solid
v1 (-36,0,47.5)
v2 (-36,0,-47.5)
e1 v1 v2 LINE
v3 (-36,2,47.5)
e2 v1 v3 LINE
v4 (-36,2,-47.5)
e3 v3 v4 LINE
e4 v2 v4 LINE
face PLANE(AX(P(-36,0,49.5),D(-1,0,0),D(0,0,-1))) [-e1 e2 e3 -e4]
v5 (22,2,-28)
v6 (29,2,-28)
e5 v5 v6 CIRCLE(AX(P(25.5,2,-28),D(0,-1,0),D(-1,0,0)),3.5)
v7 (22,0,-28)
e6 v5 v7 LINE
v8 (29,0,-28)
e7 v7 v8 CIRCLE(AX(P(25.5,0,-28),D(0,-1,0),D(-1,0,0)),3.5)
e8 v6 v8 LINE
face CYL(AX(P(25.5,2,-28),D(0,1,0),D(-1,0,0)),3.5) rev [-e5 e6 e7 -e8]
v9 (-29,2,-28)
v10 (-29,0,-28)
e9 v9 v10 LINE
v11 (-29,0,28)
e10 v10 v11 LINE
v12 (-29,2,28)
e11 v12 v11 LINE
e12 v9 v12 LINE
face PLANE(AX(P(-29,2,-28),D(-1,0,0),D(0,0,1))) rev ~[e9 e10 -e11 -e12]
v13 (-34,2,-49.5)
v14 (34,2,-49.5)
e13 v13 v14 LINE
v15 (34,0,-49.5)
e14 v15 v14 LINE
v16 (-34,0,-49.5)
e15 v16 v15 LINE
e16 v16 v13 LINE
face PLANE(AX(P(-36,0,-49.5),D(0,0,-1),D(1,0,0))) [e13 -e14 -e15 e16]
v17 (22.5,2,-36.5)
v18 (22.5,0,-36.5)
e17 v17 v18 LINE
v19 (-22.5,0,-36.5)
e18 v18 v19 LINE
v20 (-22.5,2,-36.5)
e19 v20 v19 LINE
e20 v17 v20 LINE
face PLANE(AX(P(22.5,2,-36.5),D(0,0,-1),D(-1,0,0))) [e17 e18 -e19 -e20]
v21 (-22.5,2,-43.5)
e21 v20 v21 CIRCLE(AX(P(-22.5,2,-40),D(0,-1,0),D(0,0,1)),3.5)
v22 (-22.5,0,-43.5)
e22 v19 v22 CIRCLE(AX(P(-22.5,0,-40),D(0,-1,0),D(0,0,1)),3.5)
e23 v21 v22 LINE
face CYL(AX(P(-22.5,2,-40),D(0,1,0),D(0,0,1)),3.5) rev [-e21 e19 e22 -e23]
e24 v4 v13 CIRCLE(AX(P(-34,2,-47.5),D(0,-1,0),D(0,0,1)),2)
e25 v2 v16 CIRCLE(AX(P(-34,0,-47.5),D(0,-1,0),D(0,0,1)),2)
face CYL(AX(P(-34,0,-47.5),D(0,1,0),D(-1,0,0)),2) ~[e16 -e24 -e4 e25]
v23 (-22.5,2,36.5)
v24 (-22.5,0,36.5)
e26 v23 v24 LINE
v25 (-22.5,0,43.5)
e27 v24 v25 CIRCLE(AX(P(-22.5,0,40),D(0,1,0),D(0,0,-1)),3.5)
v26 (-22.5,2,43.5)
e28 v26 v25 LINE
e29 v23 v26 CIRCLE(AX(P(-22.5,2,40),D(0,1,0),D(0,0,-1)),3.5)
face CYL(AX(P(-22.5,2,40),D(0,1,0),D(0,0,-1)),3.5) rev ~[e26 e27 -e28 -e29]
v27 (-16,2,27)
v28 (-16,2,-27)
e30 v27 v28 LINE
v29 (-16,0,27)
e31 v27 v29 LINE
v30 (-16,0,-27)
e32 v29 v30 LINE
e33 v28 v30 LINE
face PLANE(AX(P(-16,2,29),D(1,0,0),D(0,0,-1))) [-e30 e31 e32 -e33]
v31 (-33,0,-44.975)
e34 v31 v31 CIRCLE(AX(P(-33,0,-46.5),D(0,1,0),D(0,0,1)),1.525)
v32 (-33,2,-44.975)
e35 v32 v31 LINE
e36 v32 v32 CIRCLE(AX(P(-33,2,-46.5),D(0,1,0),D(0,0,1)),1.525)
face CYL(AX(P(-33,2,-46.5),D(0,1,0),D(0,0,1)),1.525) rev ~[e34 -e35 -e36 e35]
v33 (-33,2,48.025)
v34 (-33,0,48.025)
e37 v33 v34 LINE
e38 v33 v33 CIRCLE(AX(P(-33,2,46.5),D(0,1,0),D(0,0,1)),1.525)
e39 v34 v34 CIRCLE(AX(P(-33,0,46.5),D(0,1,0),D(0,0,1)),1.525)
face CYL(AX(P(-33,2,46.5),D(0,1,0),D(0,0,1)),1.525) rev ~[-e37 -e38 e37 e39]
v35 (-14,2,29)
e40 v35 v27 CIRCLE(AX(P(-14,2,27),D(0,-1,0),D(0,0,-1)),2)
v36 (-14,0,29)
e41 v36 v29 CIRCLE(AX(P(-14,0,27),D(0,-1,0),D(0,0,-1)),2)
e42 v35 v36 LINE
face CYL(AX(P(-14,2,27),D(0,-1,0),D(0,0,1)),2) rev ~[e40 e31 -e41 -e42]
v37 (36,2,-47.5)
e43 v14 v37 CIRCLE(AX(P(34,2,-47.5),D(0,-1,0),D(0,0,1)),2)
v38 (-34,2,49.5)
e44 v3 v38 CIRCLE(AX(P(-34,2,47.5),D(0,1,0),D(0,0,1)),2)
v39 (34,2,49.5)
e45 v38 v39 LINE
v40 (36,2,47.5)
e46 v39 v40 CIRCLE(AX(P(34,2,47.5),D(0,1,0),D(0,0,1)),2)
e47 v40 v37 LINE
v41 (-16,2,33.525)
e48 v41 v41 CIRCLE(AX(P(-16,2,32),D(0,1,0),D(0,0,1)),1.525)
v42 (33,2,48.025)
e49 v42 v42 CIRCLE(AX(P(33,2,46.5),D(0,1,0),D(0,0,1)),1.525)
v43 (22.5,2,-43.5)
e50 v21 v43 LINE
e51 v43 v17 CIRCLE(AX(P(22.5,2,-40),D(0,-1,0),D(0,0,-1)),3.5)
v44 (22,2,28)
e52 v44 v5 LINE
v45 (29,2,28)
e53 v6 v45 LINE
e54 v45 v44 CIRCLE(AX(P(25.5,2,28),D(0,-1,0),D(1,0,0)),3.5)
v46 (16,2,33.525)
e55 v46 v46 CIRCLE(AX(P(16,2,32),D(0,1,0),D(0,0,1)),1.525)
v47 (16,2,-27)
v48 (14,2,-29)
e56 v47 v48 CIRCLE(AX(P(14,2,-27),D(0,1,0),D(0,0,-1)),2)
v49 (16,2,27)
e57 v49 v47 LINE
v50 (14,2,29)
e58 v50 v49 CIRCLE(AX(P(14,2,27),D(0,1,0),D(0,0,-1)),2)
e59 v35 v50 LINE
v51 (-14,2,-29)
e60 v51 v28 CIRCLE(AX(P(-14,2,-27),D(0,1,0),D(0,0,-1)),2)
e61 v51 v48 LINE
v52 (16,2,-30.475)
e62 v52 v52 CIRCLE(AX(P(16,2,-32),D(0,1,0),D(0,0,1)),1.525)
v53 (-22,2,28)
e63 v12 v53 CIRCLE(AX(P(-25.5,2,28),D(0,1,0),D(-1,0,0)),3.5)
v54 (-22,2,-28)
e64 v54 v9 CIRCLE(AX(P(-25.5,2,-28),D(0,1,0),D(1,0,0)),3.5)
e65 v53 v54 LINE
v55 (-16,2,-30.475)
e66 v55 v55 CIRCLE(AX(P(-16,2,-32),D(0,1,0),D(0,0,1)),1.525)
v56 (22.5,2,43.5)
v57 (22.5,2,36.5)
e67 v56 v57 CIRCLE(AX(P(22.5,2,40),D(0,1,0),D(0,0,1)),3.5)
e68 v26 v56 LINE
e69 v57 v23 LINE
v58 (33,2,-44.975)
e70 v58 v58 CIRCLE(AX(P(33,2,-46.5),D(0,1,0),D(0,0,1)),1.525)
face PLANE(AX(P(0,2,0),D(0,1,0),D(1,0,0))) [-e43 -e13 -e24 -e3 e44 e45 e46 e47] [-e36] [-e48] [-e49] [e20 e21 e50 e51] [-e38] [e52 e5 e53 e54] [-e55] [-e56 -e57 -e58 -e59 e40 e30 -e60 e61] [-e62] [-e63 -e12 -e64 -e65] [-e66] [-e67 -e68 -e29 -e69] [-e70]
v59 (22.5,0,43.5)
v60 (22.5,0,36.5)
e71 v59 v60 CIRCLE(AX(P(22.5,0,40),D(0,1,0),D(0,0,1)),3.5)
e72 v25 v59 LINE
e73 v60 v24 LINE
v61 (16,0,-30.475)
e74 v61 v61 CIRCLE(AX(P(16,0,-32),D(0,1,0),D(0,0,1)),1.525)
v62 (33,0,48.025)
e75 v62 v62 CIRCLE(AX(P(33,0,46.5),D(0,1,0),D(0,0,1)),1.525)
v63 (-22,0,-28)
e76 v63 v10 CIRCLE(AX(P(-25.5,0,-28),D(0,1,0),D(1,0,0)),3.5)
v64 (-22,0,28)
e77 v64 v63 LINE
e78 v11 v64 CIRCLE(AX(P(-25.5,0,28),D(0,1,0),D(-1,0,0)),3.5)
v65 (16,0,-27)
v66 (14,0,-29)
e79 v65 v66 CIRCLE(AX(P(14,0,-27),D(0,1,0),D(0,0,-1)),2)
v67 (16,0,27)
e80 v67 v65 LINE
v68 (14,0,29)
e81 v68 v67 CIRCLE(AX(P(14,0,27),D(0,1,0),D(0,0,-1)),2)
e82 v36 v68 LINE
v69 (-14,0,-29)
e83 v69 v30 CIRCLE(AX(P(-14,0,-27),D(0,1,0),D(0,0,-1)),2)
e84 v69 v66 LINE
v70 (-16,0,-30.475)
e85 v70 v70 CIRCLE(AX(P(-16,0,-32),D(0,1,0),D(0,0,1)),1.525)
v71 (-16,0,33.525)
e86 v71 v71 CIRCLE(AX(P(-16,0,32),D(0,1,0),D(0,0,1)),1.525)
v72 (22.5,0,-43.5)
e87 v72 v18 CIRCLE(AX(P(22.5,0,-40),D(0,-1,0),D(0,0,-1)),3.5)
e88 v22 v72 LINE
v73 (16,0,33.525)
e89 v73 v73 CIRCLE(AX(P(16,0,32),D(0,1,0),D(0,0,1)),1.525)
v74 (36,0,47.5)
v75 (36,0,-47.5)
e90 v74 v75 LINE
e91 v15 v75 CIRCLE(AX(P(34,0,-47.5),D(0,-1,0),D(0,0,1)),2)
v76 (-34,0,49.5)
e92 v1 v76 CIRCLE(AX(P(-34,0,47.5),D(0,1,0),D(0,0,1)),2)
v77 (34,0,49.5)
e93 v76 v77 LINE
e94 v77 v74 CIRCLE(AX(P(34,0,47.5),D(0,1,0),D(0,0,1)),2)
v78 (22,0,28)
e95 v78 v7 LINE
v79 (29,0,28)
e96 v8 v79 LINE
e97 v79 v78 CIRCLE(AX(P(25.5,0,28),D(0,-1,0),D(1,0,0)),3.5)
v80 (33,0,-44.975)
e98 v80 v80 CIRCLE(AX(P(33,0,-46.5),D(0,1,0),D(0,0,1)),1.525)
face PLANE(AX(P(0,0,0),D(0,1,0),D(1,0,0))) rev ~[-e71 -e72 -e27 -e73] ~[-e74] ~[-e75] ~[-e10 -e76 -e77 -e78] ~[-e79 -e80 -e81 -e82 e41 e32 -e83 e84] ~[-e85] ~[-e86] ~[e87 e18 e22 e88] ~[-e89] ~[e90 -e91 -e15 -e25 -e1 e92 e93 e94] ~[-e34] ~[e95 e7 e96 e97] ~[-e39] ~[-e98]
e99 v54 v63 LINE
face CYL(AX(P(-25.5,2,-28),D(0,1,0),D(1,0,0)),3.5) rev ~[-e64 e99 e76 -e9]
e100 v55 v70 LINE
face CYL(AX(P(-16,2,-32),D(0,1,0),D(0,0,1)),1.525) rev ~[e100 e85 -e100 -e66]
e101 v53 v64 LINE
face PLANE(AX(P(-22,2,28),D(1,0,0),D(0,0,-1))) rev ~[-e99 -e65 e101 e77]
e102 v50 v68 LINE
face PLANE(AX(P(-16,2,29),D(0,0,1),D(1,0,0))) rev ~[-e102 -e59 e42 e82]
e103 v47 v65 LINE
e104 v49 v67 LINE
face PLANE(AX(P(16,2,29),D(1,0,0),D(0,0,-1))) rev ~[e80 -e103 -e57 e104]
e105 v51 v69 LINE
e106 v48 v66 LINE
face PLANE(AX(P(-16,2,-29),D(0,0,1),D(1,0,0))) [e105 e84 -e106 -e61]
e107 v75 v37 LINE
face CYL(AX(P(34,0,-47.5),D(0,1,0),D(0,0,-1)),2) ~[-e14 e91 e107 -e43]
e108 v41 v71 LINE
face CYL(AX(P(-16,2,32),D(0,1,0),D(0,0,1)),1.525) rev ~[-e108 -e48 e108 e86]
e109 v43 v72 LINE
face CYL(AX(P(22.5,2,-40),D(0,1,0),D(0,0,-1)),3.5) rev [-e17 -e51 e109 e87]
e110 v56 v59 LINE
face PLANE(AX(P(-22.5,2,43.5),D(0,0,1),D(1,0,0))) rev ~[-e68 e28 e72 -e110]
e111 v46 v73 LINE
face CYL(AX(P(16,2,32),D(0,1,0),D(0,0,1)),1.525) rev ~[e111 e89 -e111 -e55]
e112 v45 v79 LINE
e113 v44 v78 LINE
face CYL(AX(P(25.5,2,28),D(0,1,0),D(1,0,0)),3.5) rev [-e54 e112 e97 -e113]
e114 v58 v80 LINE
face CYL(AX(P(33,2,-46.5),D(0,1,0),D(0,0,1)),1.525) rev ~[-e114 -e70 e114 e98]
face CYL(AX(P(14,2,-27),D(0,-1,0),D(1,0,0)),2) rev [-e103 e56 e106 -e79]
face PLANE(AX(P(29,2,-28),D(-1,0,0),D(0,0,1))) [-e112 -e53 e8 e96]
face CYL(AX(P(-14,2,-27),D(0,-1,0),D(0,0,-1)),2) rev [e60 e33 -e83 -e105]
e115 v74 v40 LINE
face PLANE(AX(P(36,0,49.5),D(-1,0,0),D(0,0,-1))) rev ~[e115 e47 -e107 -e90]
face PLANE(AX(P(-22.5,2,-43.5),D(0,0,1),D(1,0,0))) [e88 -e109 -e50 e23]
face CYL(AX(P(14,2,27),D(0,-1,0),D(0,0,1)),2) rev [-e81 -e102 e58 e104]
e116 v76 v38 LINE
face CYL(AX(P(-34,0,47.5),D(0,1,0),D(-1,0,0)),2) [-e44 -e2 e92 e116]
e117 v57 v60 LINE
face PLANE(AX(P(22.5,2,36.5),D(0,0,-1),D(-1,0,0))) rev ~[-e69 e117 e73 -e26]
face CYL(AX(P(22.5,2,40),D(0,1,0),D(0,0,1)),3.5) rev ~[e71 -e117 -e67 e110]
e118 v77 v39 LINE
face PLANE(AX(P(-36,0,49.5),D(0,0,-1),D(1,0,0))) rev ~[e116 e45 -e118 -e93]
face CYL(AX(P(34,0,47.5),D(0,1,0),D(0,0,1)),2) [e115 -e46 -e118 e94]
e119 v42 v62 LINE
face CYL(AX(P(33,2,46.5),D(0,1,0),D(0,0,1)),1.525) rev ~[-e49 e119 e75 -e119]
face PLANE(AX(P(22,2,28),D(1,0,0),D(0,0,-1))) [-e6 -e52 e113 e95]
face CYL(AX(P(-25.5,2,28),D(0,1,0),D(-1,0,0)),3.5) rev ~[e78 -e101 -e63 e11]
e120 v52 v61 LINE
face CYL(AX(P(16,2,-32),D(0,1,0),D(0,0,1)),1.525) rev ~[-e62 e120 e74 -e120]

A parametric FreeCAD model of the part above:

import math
import FreeCAD as App
import Part
import Sketcher


def edges_at(feature, points):
    """Names of the edges that pass closest to the given points."""
    edges = feature.Shape.Edges
    near = lambda p: min(range(len(edges)), key=lambda i: edges[i].distToShape(Part.Vertex(*p))[0])
    return sorted({f"Edge{near(p) + 1}" for p in points})


def add_polygon(sketch, points):
    """Adds a closed chain of lines whose ends are joined by coincident constraints."""
    first, n = sketch.GeometryCount, len(points)
    for a, b in zip(points, points[1:] + points[:1]):
        sketch.addGeometry(Part.LineSegment(App.Vector(*a, 0), App.Vector(*b, 0)), False)
    for i in range(n):
        sketch.addConstraint(Sketcher.Constraint("Coincident", first + i, 2, first + (i + 1) % n, 1))

doc = App.newDocument("Part")
params = doc.addObject("Spreadsheet::Sheet", "Params")
for row, (alias, value) in enumerate([
    ("sketch1_width", "72 mm"),
    ("sketch1_height", "99 mm"),
    ("pad1_length", "2 mm"),
    ("sketch2_diameter", "3.05 mm"),
    ("pocket1_length", "2 mm"),
    ("sketch3_diameter", "3.05 mm"),
    ("pocket2_length", "2 mm"),
    ("sketch4_width", "32 mm"),
    ("sketch4_height", "58 mm"),
    ("pocket3_length", "2 mm"),
    ("fillet_radius", "2 mm"),
    ("sketch5_radius", "3.5 mm"),
    ("sketch5_width", "45 mm"),
    ("sketch5_height", "56 mm"),
    ("pocket4_length", "2 mm"),
    ("fillet2_radius", "2 mm"),
], start=1):
    params.set(f"A{row}", alias)
    params.set(f"B{row}", "=" + value)
    params.setAlias(f"B{row}", alias)

body = doc.addObject("PartDesign::Body", "Body")

sketch1 = body.newObject("Sketcher::SketchObject", "Sketch")
sketch1.AttachmentSupport = (doc.getObject("XZ_Plane"), [""])
sketch1.MapMode = "FlatFace"
add_polygon(sketch1, [(-36, -50), (-36, 50), (36, 50), (36, -50)])
sketch1.addConstraint([
    Sketcher.Constraint("Vertical", 0),
    Sketcher.Constraint("Horizontal", 1),
    Sketcher.Constraint("Vertical", 2),
    Sketcher.Constraint("Horizontal", 3),
    Sketcher.Constraint("Symmetric", 0, 2, 2, 2, -1, 1),
    Sketcher.Constraint("DistanceX", 1, 1, 1, 2, 72.0),
    Sketcher.Constraint("DistanceY", 0, 1, 0, 2, 99.0),
])
sketch1.setExpression("Constraints[9]", "Params.sketch1_width")
sketch1.setExpression("Constraints[10]", "Params.sketch1_height")
pad1 = body.newObject("PartDesign::Pad", "Pad")
pad1.Profile = sketch1
pad1.setExpression("Length", "Params.pad1_length")
pad1.Reversed = True

sketch2 = body.newObject("Sketcher::SketchObject", "Sketch001")
sketch2.AttachmentSupport = (doc.getObject("XZ_Plane"), [""])
sketch2.MapMode = "FlatFace"
sketch2.AttachmentOffset = App.Placement(App.Vector(0, 0, -2), App.Rotation())
sketch2.addGeometry([
    Part.Circle(App.Vector(33, -46.5, 0), App.Vector(0, 0, 1), 1.5),
    Part.Circle(App.Vector(-33, -46.5, 0), App.Vector(0, 0, 1), 1.5),
    Part.Circle(App.Vector(-33, 46.5, 0), App.Vector(0, 0, 1), 1.5),
    Part.Circle(App.Vector(33, 46.5, 0), App.Vector(0, 0, 1), 1.5),
], False)
sketch2.addConstraint([
    Sketcher.Constraint("Equal", 0, 1),
    Sketcher.Constraint("Equal", 1, 2),
    Sketcher.Constraint("Equal", 2, 3),
    Sketcher.Constraint("Symmetric", 0, 3, 2, 3, -1, 1),
    Sketcher.Constraint("Symmetric", 1, 3, 3, 3, -1, 1),
    Sketcher.Constraint("Symmetric", 0, 3, 1, 3, -2),
    Sketcher.Constraint("Diameter", 0, 3.05),
    Sketcher.Constraint("DistanceX", -1, 1, 0, 3, 33.0),
    Sketcher.Constraint("DistanceY", 1, 3, 2, 3, 93.0),
])
sketch2.setExpression("Constraints[6]", "Params.sketch2_diameter")
pocket1 = body.newObject("PartDesign::Pocket", "Pocket")
pocket1.Profile = sketch2
pocket1.setExpression("Length", "Params.pocket1_length")
pocket1.Reversed = True

sketch3 = body.newObject("Sketcher::SketchObject", "Sketch002")
sketch3.AttachmentSupport = (doc.getObject("XZ_Plane"), [""])
sketch3.MapMode = "FlatFace"
sketch3.AttachmentOffset = App.Placement(App.Vector(0, 0, -2), App.Rotation())
sketch3.addGeometry([
    Part.Circle(App.Vector(16, 32, 0), App.Vector(0, 0, 1), 1.5),
    Part.Circle(App.Vector(-16, 32, 0), App.Vector(0, 0, 1), 1.5),
    Part.Circle(App.Vector(-16, -32, 0), App.Vector(0, 0, 1), 1.5),
    Part.Circle(App.Vector(16, -32, 0), App.Vector(0, 0, 1), 1.5),
], False)
sketch3.addConstraint([
    Sketcher.Constraint("Equal", 0, 1),
    Sketcher.Constraint("Equal", 1, 2),
    Sketcher.Constraint("Equal", 2, 3),
    Sketcher.Constraint("Symmetric", 0, 3, 2, 3, -1, 1),
    Sketcher.Constraint("Symmetric", 1, 3, 3, 3, -1, 1),
    Sketcher.Constraint("Symmetric", 0, 3, 1, 3, -2),
    Sketcher.Constraint("Diameter", 0, 3.05),
    Sketcher.Constraint("DistanceX", -1, 1, 0, 3, 16.0),
    Sketcher.Constraint("DistanceY", -1, 1, 0, 3, 32.0),
])
sketch3.setExpression("Constraints[6]", "Params.sketch3_diameter")
pocket2 = body.newObject("PartDesign::Pocket", "Pocket001")
pocket2.Profile = sketch3
pocket2.setExpression("Length", "Params.pocket2_length")
pocket2.Reversed = True

sketch4 = body.newObject("Sketcher::SketchObject", "Sketch003")
sketch4.AttachmentSupport = (doc.getObject("XZ_Plane"), [""])
sketch4.MapMode = "FlatFace"
sketch4.AttachmentOffset = App.Placement(App.Vector(0, 0, -2), App.Rotation())
add_polygon(sketch4, [(-16, -29), (-16, 29), (16, 29), (16, -29)])
sketch4.addConstraint([
    Sketcher.Constraint("Vertical", 0),
    Sketcher.Constraint("Horizontal", 1),
    Sketcher.Constraint("Vertical", 2),
    Sketcher.Constraint("Horizontal", 3),
    Sketcher.Constraint("Symmetric", 0, 2, 2, 2, -1, 1),
    Sketcher.Constraint("DistanceX", 1, 1, 1, 2, 32.0),
    Sketcher.Constraint("DistanceY", 0, 1, 0, 2, 58.0),
])
sketch4.setExpression("Constraints[9]", "Params.sketch4_width")
sketch4.setExpression("Constraints[10]", "Params.sketch4_height")
pocket3 = body.newObject("PartDesign::Pocket", "Pocket002")
pocket3.Profile = sketch4
pocket3.setExpression("Length", "Params.pocket3_length")
pocket3.Reversed = True
doc.recompute()

fillet = body.newObject("PartDesign::Fillet", "Fillet")
fillet.Base = (pocket3, edges_at(pocket3, [
    (16, 1, -29),
    (16, 1, 29),
    (-16, 1, 29),
    (-16, 1, -29),
]))
fillet.setExpression("Radius", "Params.fillet_radius")

sketch5 = body.newObject("Sketcher::SketchObject", "Sketch004")
sketch5.AttachmentSupport = (doc.getObject("XZ_Plane"), [""])
sketch5.MapMode = "FlatFace"
sketch5.AttachmentOffset = App.Placement(App.Vector(0, 0, -2), App.Rotation())
sketch5.addGeometry([
    Part.LineSegment(App.Vector(22, -28, 0), App.Vector(22, 28, 0)),
    Part.ArcOfCircle(Part.Circle(App.Vector(25.5, 28, 0), App.Vector(0, 0, 1), 3.5), math.radians(0), math.radians(180)),
    Part.LineSegment(App.Vector(29, 28, 0), App.Vector(29, -28, 0)),
    Part.ArcOfCircle(Part.Circle(App.Vector(25.5, -28, 0), App.Vector(0, 0, 1), 3.5), math.radians(180), math.radians(360)),
    Part.LineSegment(App.Vector(-22, 28, 0), App.Vector(-22, -28, 0)),
    Part.ArcOfCircle(Part.Circle(App.Vector(-25.5, -28, 0), App.Vector(0, 0, 1), 3.5), math.radians(180), math.radians(360)),
    Part.LineSegment(App.Vector(-29, -28, 0), App.Vector(-29, 28, 0)),
    Part.ArcOfCircle(Part.Circle(App.Vector(-25.5, 28, 0), App.Vector(0, 0, 1), 3.5), math.radians(0), math.radians(180)),
    Part.LineSegment(App.Vector(22.5, -43.5, 0), App.Vector(-22.5, -43.5, 0)),
    Part.ArcOfCircle(Part.Circle(App.Vector(-22.5, -40, 0), App.Vector(0, 0, 1), 3.5), math.radians(90), math.radians(270)),
    Part.LineSegment(App.Vector(-22.5, -36.5, 0), App.Vector(22.5, -36.5, 0)),
    Part.ArcOfCircle(Part.Circle(App.Vector(22.5, -40, 0), App.Vector(0, 0, 1), 3.5), math.radians(-90), math.radians(90)),
    Part.LineSegment(App.Vector(-22.5, 43.5, 0), App.Vector(22.5, 43.5, 0)),
    Part.ArcOfCircle(Part.Circle(App.Vector(22.5, 40, 0), App.Vector(0, 0, 1), 3.5), math.radians(-90), math.radians(90)),
    Part.LineSegment(App.Vector(22.5, 36.5, 0), App.Vector(-22.5, 36.5, 0)),
    Part.ArcOfCircle(Part.Circle(App.Vector(-22.5, 40, 0), App.Vector(0, 0, 1), 3.5), math.radians(90), math.radians(270)),
], False)
sketch5.addConstraint([
    Sketcher.Constraint("Tangent", 0, 2, 1, 2),
    Sketcher.Constraint("Tangent", 1, 1, 2, 1),
    Sketcher.Constraint("Tangent", 2, 2, 3, 2),
    Sketcher.Constraint("Tangent", 3, 1, 0, 1),
    Sketcher.Constraint("Tangent", 4, 2, 5, 2),
    Sketcher.Constraint("Tangent", 5, 1, 6, 1),
    Sketcher.Constraint("Tangent", 6, 2, 7, 2),
    Sketcher.Constraint("Tangent", 7, 1, 4, 1),
    Sketcher.Constraint("Tangent", 8, 2, 9, 2),
    Sketcher.Constraint("Tangent", 9, 1, 10, 1),
    Sketcher.Constraint("Tangent", 10, 2, 11, 2),
    Sketcher.Constraint("Tangent", 11, 1, 8, 1),
    Sketcher.Constraint("Tangent", 12, 2, 13, 2),
    Sketcher.Constraint("Tangent", 13, 1, 14, 1),
    Sketcher.Constraint("Tangent", 14, 2, 15, 2),
    Sketcher.Constraint("Tangent", 15, 1, 12, 1),
    Sketcher.Constraint("Vertical", 0),
    Sketcher.Constraint("Vertical", 2),
    Sketcher.Constraint("Vertical", 4),
    Sketcher.Constraint("Vertical", 6),
    Sketcher.Constraint("Horizontal", 8),
    Sketcher.Constraint("Horizontal", 10),
    Sketcher.Constraint("Horizontal", 12),
    Sketcher.Constraint("Horizontal", 14),
    Sketcher.Constraint("Equal", 3, 5),
    Sketcher.Constraint("Equal", 7, 9),
    Sketcher.Constraint("Equal", 11, 13),
    Sketcher.Constraint("Symmetric", 1, 3, 5, 3, -1, 1),
    Sketcher.Constraint("Symmetric", 9, 3, 13, 3, -1, 1),
    Sketcher.Constraint("Horizontal", 3, 3, 5, 3),
    Sketcher.Constraint("Horizontal", 1, 3, 7, 3),
    Sketcher.Constraint("Vertical", 11, 3, 13, 3),
    Sketcher.Constraint("Vertical", 9, 3, 15, 3),
    Sketcher.Constraint("Radius", 1, 3.5),
    Sketcher.Constraint("DistanceX", 8, 2, 8, 1, 45.0),
    Sketcher.Constraint("DistanceY", 0, 1, 0, 2, 56.0),
    Sketcher.Constraint("DistanceY", 9, 3, -1, 1, 40.0),
    Sketcher.Constraint("DistanceX", -1, 1, 0, 2, 22.0),
])
sketch5.setExpression("Constraints[33]", "Params.sketch5_radius")
sketch5.setExpression("Constraints[34]", "Params.sketch5_width")
sketch5.setExpression("Constraints[35]", "Params.sketch5_height")
pocket4 = body.newObject("PartDesign::Pocket", "Pocket003")
pocket4.Profile = sketch5
pocket4.setExpression("Length", "Params.pocket4_length")
pocket4.Reversed = True
doc.recompute()

fillet2 = body.newObject("PartDesign::Fillet", "Fillet001")
fillet2.Base = (pocket4, edges_at(pocket4, [
    (36, 1, 49.5),
    (-36, 1, 49.5),
    (-36, 1, -49.5),
    (36, 1, -49.5),
]))
fillet2.setExpression("Radius", "Params.fillet2_radius")

doc.recompute()
